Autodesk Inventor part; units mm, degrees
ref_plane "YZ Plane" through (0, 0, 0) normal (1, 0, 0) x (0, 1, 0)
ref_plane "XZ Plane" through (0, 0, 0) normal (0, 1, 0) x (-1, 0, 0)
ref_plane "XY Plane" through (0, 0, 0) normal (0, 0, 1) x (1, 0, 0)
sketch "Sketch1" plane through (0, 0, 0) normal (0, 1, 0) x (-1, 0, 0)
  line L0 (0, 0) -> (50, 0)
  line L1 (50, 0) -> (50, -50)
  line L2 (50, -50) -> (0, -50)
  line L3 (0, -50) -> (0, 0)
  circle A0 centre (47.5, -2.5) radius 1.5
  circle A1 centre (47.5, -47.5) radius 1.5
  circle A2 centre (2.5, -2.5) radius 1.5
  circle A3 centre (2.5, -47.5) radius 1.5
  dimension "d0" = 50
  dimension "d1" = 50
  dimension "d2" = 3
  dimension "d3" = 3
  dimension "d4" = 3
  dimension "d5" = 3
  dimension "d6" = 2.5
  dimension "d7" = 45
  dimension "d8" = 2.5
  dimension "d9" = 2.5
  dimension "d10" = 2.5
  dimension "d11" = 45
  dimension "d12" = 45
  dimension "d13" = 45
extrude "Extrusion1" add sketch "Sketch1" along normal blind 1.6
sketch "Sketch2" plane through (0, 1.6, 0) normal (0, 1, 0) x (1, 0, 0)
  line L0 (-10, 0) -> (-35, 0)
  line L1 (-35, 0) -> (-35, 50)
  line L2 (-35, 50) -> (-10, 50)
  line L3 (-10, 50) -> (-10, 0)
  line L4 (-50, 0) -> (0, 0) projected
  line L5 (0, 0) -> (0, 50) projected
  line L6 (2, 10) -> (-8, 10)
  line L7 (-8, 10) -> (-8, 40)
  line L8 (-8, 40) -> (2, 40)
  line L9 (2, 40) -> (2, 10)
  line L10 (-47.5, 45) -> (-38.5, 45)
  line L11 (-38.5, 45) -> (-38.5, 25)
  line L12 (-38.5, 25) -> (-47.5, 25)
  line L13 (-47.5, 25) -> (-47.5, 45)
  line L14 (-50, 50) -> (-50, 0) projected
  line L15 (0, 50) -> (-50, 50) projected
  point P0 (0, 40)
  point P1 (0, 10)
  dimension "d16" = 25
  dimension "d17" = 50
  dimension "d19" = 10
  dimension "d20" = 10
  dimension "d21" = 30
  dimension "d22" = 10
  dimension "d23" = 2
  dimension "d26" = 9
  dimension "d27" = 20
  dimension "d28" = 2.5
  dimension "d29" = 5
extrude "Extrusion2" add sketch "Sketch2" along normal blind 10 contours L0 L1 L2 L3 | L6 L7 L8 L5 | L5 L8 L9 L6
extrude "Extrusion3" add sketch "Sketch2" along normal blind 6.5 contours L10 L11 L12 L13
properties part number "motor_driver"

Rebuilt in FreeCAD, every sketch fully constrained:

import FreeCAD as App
import Part
import Sketcher

V = App.Vector

doc = App.newDocument("Part")
body = doc.addObject("PartDesign::Body", "Body")

sketch1 = doc.addObject("Sketcher::SketchObject", "Sketch")
body.addObject(sketch1)
sketch1.AttachmentSupport = (doc.XZ_Plane, [""])
sketch1.MapMode = "FlatFace"
sketch1.addGeometry(Part.LineSegment(V(-50, 0, 0), V(0, 0, 0)), False)
sketch1.addGeometry(Part.LineSegment(V(0, 0, 0), V(0, -50, 0)), False)
sketch1.addGeometry(Part.LineSegment(V(0, -50, 0), V(-50, -50, 0)), False)
sketch1.addGeometry(Part.LineSegment(V(-50, -50, 0), V(-50, 0, 0)), False)
sketch1.addGeometry(Part.Circle(V(-2.5, -47.5, 0), V(0, 0, 1), 1.5), False)
sketch1.addGeometry(Part.Circle(V(-47.5, -47.5, 0), V(0, 0, 1), 1.5), False)
sketch1.addGeometry(Part.Circle(V(-2.5, -2.5, 0), V(0, 0, 1), 1.5), False)
sketch1.addGeometry(Part.Circle(V(-47.5, -2.5, 0), V(0, 0, 1), 1.5), False)
sketch1.addConstraint(Sketcher.Constraint("Coincident", 0, 2, 1, 1))
sketch1.addConstraint(Sketcher.Constraint("Coincident", 1, 2, 2, 1))
sketch1.addConstraint(Sketcher.Constraint("Coincident", 2, 2, 3, 1))
sketch1.addConstraint(Sketcher.Constraint("Coincident", 3, 2, 0, 1))
sketch1.addConstraint(Sketcher.Constraint("Horizontal", 0))
sketch1.addConstraint(Sketcher.Constraint("Vertical", 1))
sketch1.addConstraint(Sketcher.Constraint("Horizontal", 2))
sketch1.addConstraint(Sketcher.Constraint("Vertical", 3))
sketch1.addConstraint(Sketcher.Constraint("Coincident", 0, 2, -1, 1))
sketch1.addConstraint(Sketcher.Constraint("Equal", 4, 5))
sketch1.addConstraint(Sketcher.Constraint("Equal", 5, 6))
sketch1.addConstraint(Sketcher.Constraint("Equal", 6, 7))
sketch1.addConstraint(Sketcher.Constraint("Horizontal", 4, 3, 5, 3))
sketch1.addConstraint(Sketcher.Constraint("Horizontal", 6, 3, 7, 3))
sketch1.addConstraint(Sketcher.Constraint("Vertical", 4, 3, 6, 3))
sketch1.addConstraint(Sketcher.Constraint("Vertical", 5, 3, 7, 3))
sketch1.addConstraint(Sketcher.Constraint("Equal", 2, 1))
sketch1.addConstraint(Sketcher.Constraint("Diameter", 4, 3.0))
sketch1.addConstraint(Sketcher.Constraint("DistanceX", 0, 1, 0, 2, 50.0))
sketch1.addConstraint(Sketcher.Constraint("DistanceX", 5, 3, 4, 3, 45.0))
sketch1.addConstraint(Sketcher.Constraint("DistanceY", 4, 3, 6, 3, 45.0))
sketch1.addConstraint(Sketcher.Constraint("DistanceX", 4, 3, -1, 1, 2.5))
sketch1.addConstraint(Sketcher.Constraint("DistanceY", 6, 3, -1, 1, 2.5))
pad1 = doc.addObject("PartDesign::Pad", "Pad")
body.addObject(pad1)
pad1.Profile = sketch1
pad1.Length = 1.6
pad1.Reversed = True

sketch2 = doc.addObject("Sketcher::SketchObject", "Sketch001")
body.addObject(sketch2)
sketch2.AttachmentSupport = (doc.XZ_Plane, [""])
sketch2.MapMode = "FlatFace"
sketch2.AttachmentOffset = App.Placement(V(0, 0, -1.6), App.Rotation())
sketch2.addGeometry(Part.LineSegment(V(-35, 0, 0), V(-10, 0, 0)), False)
sketch2.addGeometry(Part.LineSegment(V(-10, 0, 0), V(-10, -50, 0)), False)
sketch2.addGeometry(Part.LineSegment(V(-10, -50, 0), V(-35, -50, 0)), False)
sketch2.addGeometry(Part.LineSegment(V(-35, -50, 0), V(-35, 0, 0)), False)
sketch2.addGeometry(Part.LineSegment(V(-8, -10, 0), V(2, -10, 0)), False)
sketch2.addGeometry(Part.LineSegment(V(2, -10, 0), V(2, -40, 0)), False)
sketch2.addGeometry(Part.LineSegment(V(2, -40, 0), V(-8, -40, 0)), False)
sketch2.addGeometry(Part.LineSegment(V(-8, -40, 0), V(-8, -10, 0)), False)
sketch2.addConstraint(Sketcher.Constraint("Coincident", 0, 2, 1, 1))
sketch2.addConstraint(Sketcher.Constraint("Coincident", 1, 2, 2, 1))
sketch2.addConstraint(Sketcher.Constraint("Coincident", 2, 2, 3, 1))
sketch2.addConstraint(Sketcher.Constraint("Coincident", 3, 2, 0, 1))
sketch2.addConstraint(Sketcher.Constraint("Coincident", 4, 2, 5, 1))
sketch2.addConstraint(Sketcher.Constraint("Coincident", 5, 2, 6, 1))
sketch2.addConstraint(Sketcher.Constraint("Coincident", 6, 2, 7, 1))
sketch2.addConstraint(Sketcher.Constraint("Coincident", 7, 2, 4, 1))
sketch2.addConstraint(Sketcher.Constraint("Horizontal", 0))
sketch2.addConstraint(Sketcher.Constraint("Vertical", 1))
sketch2.addConstraint(Sketcher.Constraint("Horizontal", 2))
sketch2.addConstraint(Sketcher.Constraint("Vertical", 3))
sketch2.addConstraint(Sketcher.Constraint("Horizontal", 4))
sketch2.addConstraint(Sketcher.Constraint("Vertical", 5))
sketch2.addConstraint(Sketcher.Constraint("Horizontal", 6))
sketch2.addConstraint(Sketcher.Constraint("Vertical", 7))
sketch2.addConstraint(Sketcher.Constraint("PointOnObject", 0, 2, -1))
sketch2.addConstraint(Sketcher.Constraint("DistanceX", 0, 1, 0, 2, 25.0))
sketch2.addConstraint(Sketcher.Constraint("DistanceX", 4, 1, 4, 2, 10.0))
sketch2.addConstraint(Sketcher.Constraint("DistanceY", 1, 2, 1, 1, 50.0))
sketch2.addConstraint(Sketcher.Constraint("DistanceY", 5, 2, 5, 1, 30.0))
sketch2.addConstraint(Sketcher.Constraint("DistanceX", 0, 2, -1, 1, 10.0))
sketch2.addConstraint(Sketcher.Constraint("DistanceX", -1, 1, 4, 2, 2.0))
sketch2.addConstraint(Sketcher.Constraint("DistanceY", 4, 2, -1, 1, 10.0))
pad2 = doc.addObject("PartDesign::Pad", "Pad001")
body.addObject(pad2)
pad2.Profile = sketch2
pad2.Length = 10
pad2.Reversed = True

sketch3 = doc.addObject("Sketcher::SketchObject", "Sketch002")
body.addObject(sketch3)
sketch3.AttachmentSupport = (doc.XZ_Plane, [""])
sketch3.MapMode = "FlatFace"
sketch3.AttachmentOffset = App.Placement(V(0, 0, -1.6), App.Rotation())
sketch3.addGeometry(Part.LineSegment(V(-38, -45, 0), V(-48, -45, 0)), False)
sketch3.addGeometry(Part.LineSegment(V(-48, -45, 0), V(-48, -25, 0)), False)
sketch3.addGeometry(Part.LineSegment(V(-48, -25, 0), V(-38, -25, 0)), False)
sketch3.addGeometry(Part.LineSegment(V(-38, -25, 0), V(-38, -45, 0)), False)
sketch3.addConstraint(Sketcher.Constraint("Coincident", 0, 2, 1, 1))
sketch3.addConstraint(Sketcher.Constraint("Coincident", 1, 2, 2, 1))
sketch3.addConstraint(Sketcher.Constraint("Coincident", 2, 2, 3, 1))
sketch3.addConstraint(Sketcher.Constraint("Coincident", 3, 2, 0, 1))
sketch3.addConstraint(Sketcher.Constraint("Horizontal", 0))
sketch3.addConstraint(Sketcher.Constraint("Vertical", 1))
sketch3.addConstraint(Sketcher.Constraint("Horizontal", 2))
sketch3.addConstraint(Sketcher.Constraint("Vertical", 3))
sketch3.addConstraint(Sketcher.Constraint("DistanceX", 0, 2, 0, 1, 9.0))
sketch3.addConstraint(Sketcher.Constraint("DistanceY", 1, 1, 1, 2, 20.0))
sketch3.addConstraint(Sketcher.Constraint("DistanceY", 1, 2, -1, 1, 25.0))
sketch3.addConstraint(Sketcher.Constraint("DistanceX", 0, 2, -1, 1, 47.5))
pad3 = doc.addObject("PartDesign::Pad", "Pad002")
body.addObject(pad3)
pad3.Profile = sketch3
pad3.Length = 6.5
pad3.Reversed = True

doc.recompute()
